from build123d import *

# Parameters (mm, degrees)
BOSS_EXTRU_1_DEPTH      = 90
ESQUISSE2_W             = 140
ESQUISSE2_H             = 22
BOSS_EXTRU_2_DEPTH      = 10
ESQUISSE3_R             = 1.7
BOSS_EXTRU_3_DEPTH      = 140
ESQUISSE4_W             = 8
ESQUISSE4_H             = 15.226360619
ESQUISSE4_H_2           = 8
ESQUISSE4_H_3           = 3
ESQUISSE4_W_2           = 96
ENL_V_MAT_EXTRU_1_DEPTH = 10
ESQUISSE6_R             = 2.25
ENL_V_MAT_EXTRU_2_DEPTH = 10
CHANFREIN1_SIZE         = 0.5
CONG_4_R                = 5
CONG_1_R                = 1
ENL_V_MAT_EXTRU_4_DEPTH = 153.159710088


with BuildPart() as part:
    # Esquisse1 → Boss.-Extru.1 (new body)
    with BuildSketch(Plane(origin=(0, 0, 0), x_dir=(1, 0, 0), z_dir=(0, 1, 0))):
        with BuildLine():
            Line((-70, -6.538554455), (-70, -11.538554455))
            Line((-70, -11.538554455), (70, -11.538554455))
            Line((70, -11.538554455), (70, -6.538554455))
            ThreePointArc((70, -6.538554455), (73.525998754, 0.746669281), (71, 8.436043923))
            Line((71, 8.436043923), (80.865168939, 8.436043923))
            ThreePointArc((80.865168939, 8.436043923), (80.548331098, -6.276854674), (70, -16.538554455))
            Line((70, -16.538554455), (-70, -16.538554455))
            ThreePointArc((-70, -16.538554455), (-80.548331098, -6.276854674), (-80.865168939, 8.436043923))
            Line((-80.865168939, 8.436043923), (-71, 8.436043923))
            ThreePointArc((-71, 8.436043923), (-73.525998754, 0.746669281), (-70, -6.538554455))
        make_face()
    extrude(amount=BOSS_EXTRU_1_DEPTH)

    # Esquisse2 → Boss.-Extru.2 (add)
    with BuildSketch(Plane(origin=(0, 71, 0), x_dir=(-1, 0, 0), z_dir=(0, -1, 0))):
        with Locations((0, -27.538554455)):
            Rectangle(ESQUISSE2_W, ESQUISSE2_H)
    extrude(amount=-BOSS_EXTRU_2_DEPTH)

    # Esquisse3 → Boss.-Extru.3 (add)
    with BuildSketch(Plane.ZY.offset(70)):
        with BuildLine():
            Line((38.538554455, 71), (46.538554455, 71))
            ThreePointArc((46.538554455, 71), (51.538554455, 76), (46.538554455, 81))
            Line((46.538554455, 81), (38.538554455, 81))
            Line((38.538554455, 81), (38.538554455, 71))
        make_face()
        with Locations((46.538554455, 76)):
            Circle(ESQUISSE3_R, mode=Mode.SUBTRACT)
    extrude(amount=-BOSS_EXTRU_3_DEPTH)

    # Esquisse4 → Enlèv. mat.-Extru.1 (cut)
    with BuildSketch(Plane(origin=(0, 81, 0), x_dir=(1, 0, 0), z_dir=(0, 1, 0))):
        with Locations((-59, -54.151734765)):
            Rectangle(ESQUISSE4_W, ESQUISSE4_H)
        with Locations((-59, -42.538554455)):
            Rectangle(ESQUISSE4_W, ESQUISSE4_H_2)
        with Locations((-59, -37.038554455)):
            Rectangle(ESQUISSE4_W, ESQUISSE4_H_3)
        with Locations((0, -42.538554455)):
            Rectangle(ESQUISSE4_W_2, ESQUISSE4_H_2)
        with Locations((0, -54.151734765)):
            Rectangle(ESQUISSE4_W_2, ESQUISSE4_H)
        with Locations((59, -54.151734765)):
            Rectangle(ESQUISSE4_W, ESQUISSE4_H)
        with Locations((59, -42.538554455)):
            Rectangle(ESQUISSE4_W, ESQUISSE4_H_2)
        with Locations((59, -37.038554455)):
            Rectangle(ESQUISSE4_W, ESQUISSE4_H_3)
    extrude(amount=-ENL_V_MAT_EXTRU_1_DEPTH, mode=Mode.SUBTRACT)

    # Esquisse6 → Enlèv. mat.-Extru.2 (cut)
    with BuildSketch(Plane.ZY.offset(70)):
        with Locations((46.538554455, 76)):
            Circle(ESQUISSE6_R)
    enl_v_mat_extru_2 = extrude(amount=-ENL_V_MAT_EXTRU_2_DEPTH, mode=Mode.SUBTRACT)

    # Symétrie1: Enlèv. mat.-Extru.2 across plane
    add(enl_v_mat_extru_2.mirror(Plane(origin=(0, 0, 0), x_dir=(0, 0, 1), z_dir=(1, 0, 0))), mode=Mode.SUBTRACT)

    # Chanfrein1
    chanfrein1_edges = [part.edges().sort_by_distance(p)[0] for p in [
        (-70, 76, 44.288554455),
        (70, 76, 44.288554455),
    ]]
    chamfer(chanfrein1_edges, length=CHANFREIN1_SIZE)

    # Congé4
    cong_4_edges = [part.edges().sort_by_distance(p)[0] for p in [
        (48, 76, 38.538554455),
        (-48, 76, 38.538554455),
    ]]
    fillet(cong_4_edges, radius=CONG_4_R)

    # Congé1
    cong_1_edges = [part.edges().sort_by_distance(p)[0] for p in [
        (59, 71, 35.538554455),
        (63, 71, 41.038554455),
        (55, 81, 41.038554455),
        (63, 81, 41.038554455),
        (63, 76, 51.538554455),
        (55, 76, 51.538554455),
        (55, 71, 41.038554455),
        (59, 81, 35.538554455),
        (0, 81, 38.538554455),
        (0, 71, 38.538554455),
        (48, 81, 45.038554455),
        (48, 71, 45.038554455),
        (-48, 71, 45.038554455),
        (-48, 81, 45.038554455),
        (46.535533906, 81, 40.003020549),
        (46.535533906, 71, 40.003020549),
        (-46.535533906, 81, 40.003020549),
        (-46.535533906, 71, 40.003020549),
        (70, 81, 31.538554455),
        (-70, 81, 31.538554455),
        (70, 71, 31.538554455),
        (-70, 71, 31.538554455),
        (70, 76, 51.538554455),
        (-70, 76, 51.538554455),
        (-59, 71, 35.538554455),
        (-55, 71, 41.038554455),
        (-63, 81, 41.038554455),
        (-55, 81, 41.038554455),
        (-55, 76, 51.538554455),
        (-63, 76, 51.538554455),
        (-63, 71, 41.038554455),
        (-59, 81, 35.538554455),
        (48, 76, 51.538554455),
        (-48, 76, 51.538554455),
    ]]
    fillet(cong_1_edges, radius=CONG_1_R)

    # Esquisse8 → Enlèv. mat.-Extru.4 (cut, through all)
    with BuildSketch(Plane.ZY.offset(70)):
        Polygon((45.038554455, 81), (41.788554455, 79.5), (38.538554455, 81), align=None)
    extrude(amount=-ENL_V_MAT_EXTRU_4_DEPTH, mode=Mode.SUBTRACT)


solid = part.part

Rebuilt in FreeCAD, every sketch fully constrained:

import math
import FreeCAD as App
import Part
import Sketcher

V = App.Vector


def edges_at(feature, points):
    """Names of the edges that pass closest to the given points."""
    edges = feature.Shape.Edges
    near = lambda p: min(range(len(edges)), key=lambda i: edges[i].distToShape(Part.Vertex(*p))[0])
    return sorted({f"Edge{near(p) + 1}" for p in points})


def add_polygon(sketch, points):
    """Adds a closed chain of lines whose ends are joined by coincident constraints."""
    first, n = sketch.GeometryCount, len(points)
    for a, b in zip(points, points[1:] + points[:1]):
        sketch.addGeometry(Part.LineSegment(App.Vector(*a, 0), App.Vector(*b, 0)), False)
    for i in range(n):
        sketch.addConstraint(Sketcher.Constraint("Coincident", first + i, 2, first + (i + 1) % n, 1))

doc = App.newDocument("Part")
body = doc.addObject("PartDesign::Body", "Body")

# Sketch on XZ plane
sketch1 = body.newObject("Sketcher::SketchObject", "Sketch")
sketch1.AttachmentSupport = (doc.getObject("XZ_Plane"), [""])
sketch1.MapMode = "FlatFace"
sketch1.addGeometry(Part.LineSegment(V(-70, 12, 0), V(-70, 7, 0)), False)
sketch1.addGeometry(Part.ArcOfCircle(Part.Circle(V(-63, -1, 0), V(0, 0, 1), 11), math.radians(132), math.radians(220)), False)
sketch1.addGeometry(Part.LineSegment(V(-71, -8, 0), V(-81, -8, 0)), False)
sketch1.addGeometry(Part.ArcOfCircle(Part.Circle(V(-63, -1, 0), V(0, 0, 1), 19), math.radians(112), math.radians(201)), False)
sketch1.addGeometry(Part.LineSegment(V(-70, 17, 0), V(70, 17, 0)), False)
sketch1.addGeometry(Part.ArcOfCircle(Part.Circle(V(63, -1, 0), V(0, 0, 1), 19), math.radians(-21), math.radians(68)), False)
sketch1.addGeometry(Part.LineSegment(V(81, -8, 0), V(71, -8, 0)), False)
sketch1.addGeometry(Part.ArcOfCircle(Part.Circle(V(63, -1, 0), V(0, 0, 1), 11), math.radians(-40), math.radians(48)), False)
sketch1.addGeometry(Part.LineSegment(V(70, 7, 0), V(70, 12, 0)), False)
sketch1.addGeometry(Part.LineSegment(V(70, 12, 0), V(-70, 12, 0)), False)
sketch1.addConstraint(Sketcher.Constraint("Coincident", 0, 2, 1, 1))
sketch1.addConstraint(Sketcher.Constraint("Coincident", 1, 2, 2, 1))
sketch1.addConstraint(Sketcher.Constraint("Coincident", 2, 2, 3, 2))
sketch1.addConstraint(Sketcher.Constraint("Coincident", 3, 1, 4, 1))
sketch1.addConstraint(Sketcher.Constraint("Coincident", 4, 2, 5, 2))
sketch1.addConstraint(Sketcher.Constraint("Coincident", 5, 1, 6, 1))
sketch1.addConstraint(Sketcher.Constraint("Coincident", 6, 2, 7, 1))
sketch1.addConstraint(Sketcher.Constraint("Coincident", 7, 2, 8, 1))
sketch1.addConstraint(Sketcher.Constraint("Coincident", 8, 2, 9, 1))
sketch1.addConstraint(Sketcher.Constraint("Coincident", 9, 2, 0, 1))
sketch1.addConstraint(Sketcher.Constraint("Vertical", 0))
sketch1.addConstraint(Sketcher.Constraint("Horizontal", 2))
sketch1.addConstraint(Sketcher.Constraint("Horizontal", 4))
sketch1.addConstraint(Sketcher.Constraint("Horizontal", 6))
sketch1.addConstraint(Sketcher.Constraint("Vertical", 8))
sketch1.addConstraint(Sketcher.Constraint("Horizontal", 9))
sketch1.addConstraint(Sketcher.Constraint("Coincident", 3, 3, 1, 3))
sketch1.addConstraint(Sketcher.Constraint("Coincident", 7, 3, 5, 3))
sketch1.addConstraint(Sketcher.Constraint("Equal", 3, 5))
sketch1.addConstraint(Sketcher.Constraint("Equal", 1, 7))
sketch1.addConstraint(Sketcher.Constraint("Symmetric", 1, 3, 5, 3, -2))
sketch1.addConstraint(Sketcher.Constraint("Horizontal", 2, 2, 5, 1))
sketch1.addConstraint(Sketcher.Constraint("Horizontal", 0, 2, 7, 2))
sketch1.addConstraint(Sketcher.Constraint("Vertical", 0, 2, 3, 1))
sketch1.addConstraint(Sketcher.Constraint("Radius", 1, 10.8))
sketch1.addConstraint(Sketcher.Constraint("DistanceX", 4, 1, 4, 2, 140.0))
sketch1.addConstraint(Sketcher.Constraint("DistanceY", 0, 2, 0, 1, 5.0))
sketch1.addConstraint(Sketcher.Constraint("DistanceX", 1, 2, -1, 1, 71.0))
sketch1.addConstraint(Sketcher.Constraint("DistanceY", 0, 2, 3, 1, 10.0))
sketch1.addConstraint(Sketcher.Constraint("DistanceX", 1, 3, 5, 3, 125.5))
sketch1.addConstraint(Sketcher.Constraint("DistanceY", 1, 3, -1, 1, 1.466288))
pad1 = body.newObject("PartDesign::Pad", "Pad")
pad1.Profile = sketch1
pad1.Length = 90
pad1.Reversed = True

# Sketch on XZ plane
sketch2 = body.newObject("Sketcher::SketchObject", "Sketch001")
sketch2.AttachmentSupport = (doc.getObject("XZ_Plane"), [""])
sketch2.MapMode = "FlatFace"
sketch2.AttachmentOffset = App.Placement(V(0, 0, -71), App.Rotation())
add_polygon(sketch2, [(70, 17), (70, 39), (-70, 39), (-70, 17)])  # lines 0-3
sketch2.addConstraint(Sketcher.Constraint("Vertical", 0))
sketch2.addConstraint(Sketcher.Constraint("Horizontal", 1))
sketch2.addConstraint(Sketcher.Constraint("Vertical", 2))
sketch2.addConstraint(Sketcher.Constraint("Horizontal", 3))
sketch2.addConstraint(Sketcher.Constraint("DistanceX", 1, 2, 1, 1, 140.0))
sketch2.addConstraint(Sketcher.Constraint("DistanceY", 0, 1, 0, 2, 22.0))
sketch2.addConstraint(Sketcher.Constraint("DistanceX", -1, 1, 0, 2, 70.0))
sketch2.addConstraint(Sketcher.Constraint("DistanceY", -1, 1, 0, 2, 38.538554))
pad2 = body.newObject("PartDesign::Pad", "Pad001")
pad2.Profile = sketch2
pad2.Length = 10
pad2.Reversed = True

# Sketch on YZ plane
sketch3 = body.newObject("Sketcher::SketchObject", "Sketch002")
sketch3.AttachmentSupport = (doc.getObject("YZ_Plane"), [""])
sketch3.MapMode = "FlatFace"
sketch3.AttachmentOffset = App.Placement(V(0, 0, -70), App.Rotation())
sketch3.addGeometry(Part.LineSegment(V(71, 38.5, 0), V(71, 46.5, 0)), False)
sketch3.addGeometry(Part.ArcOfCircle(Part.Circle(V(76, 46.5, 0), V(0, 0, 1), 5), math.radians(0), math.radians(180)), False)
sketch3.addGeometry(Part.LineSegment(V(81, 46.5, 0), V(81, 38.5, 0)), False)
sketch3.addGeometry(Part.LineSegment(V(81, 38.5, 0), V(71, 38.5, 0)), False)
sketch3.addGeometry(Part.Circle(V(76, 46.5, 0), V(0, 0, 1), 1.7), False)
sketch3.addConstraint(Sketcher.Constraint("Tangent", 0, 2, 1, 2))
sketch3.addConstraint(Sketcher.Constraint("Tangent", 1, 1, 2, 1))
sketch3.addConstraint(Sketcher.Constraint("Coincident", 2, 2, 3, 1))
sketch3.addConstraint(Sketcher.Constraint("Coincident", 3, 2, 0, 1))
sketch3.addConstraint(Sketcher.Constraint("Vertical", 0))
sketch3.addConstraint(Sketcher.Constraint("Vertical", 2))
sketch3.addConstraint(Sketcher.Constraint("Horizontal", 3))
sketch3.addConstraint(Sketcher.Constraint("Coincident", 4, 3, 1, 3))
sketch3.addConstraint(Sketcher.Constraint("Radius", 1, 5.0))
sketch3.addConstraint(Sketcher.Constraint("Diameter", 4, 3.4))
sketch3.addConstraint(Sketcher.Constraint("DistanceY", 0, 1, 0, 2, 8.0))
sketch3.addConstraint(Sketcher.Constraint("DistanceX", -1, 1, 1, 3, 76.0))
sketch3.addConstraint(Sketcher.Constraint("DistanceY", -1, 1, 1, 3, 46.538554))
pad3 = body.newObject("PartDesign::Pad", "Pad002")
pad3.Profile = sketch3
pad3.Length = 140

# Sketch on XZ plane
sketch4 = body.newObject("Sketcher::SketchObject", "Sketch003")
sketch4.AttachmentSupport = (doc.getObject("XZ_Plane"), [""])
sketch4.MapMode = "FlatFace"
sketch4.AttachmentOffset = App.Placement(V(0, 0, -81), App.Rotation())
add_polygon(sketch4, [(-63, 62), (-55, 62), (-55, 36), (-63, 36)])  # lines 0-3
add_polygon(sketch4, [(-48, 39), (-48, 62), (48, 62), (48, 39)])  # lines 4-7
add_polygon(sketch4, [(55, 62), (63, 62), (63, 36), (55, 36)])  # lines 8-11
sketch4.addConstraint(Sketcher.Constraint("Horizontal", 0))
sketch4.addConstraint(Sketcher.Constraint("Vertical", 1))
sketch4.addConstraint(Sketcher.Constraint("Horizontal", 2))
sketch4.addConstraint(Sketcher.Constraint("Vertical", 3))
sketch4.addConstraint(Sketcher.Constraint("Vertical", 4))
sketch4.addConstraint(Sketcher.Constraint("Horizontal", 5))
sketch4.addConstraint(Sketcher.Constraint("Vertical", 6))
sketch4.addConstraint(Sketcher.Constraint("Horizontal", 7))
sketch4.addConstraint(Sketcher.Constraint("Horizontal", 8))
sketch4.addConstraint(Sketcher.Constraint("Vertical", 9))
sketch4.addConstraint(Sketcher.Constraint("Horizontal", 10))
sketch4.addConstraint(Sketcher.Constraint("Vertical", 11))
sketch4.addConstraint(Sketcher.Constraint("Symmetric", 3, 2, 8, 2, -2))
sketch4.addConstraint(Sketcher.Constraint("Symmetric", 1, 2, 10, 2, -2))
sketch4.addConstraint(Sketcher.Constraint("Horizontal", 3, 2, 4, 2))
sketch4.addConstraint(Sketcher.Constraint("DistanceX", 0, 1, 0, 2, 8.0))
sketch4.addConstraint(Sketcher.Constraint("DistanceX", 5, 1, 5, 2, 96.0))
sketch4.addConstraint(Sketcher.Constraint("DistanceX", 0, 2, -1, 1, 55.0))
sketch4.addConstraint(Sketcher.Constraint("DistanceX", 4, 2, -1, 1, 48.0))
sketch4.addConstraint(Sketcher.Constraint("DistanceY", 1, 2, 6, 2, 3.0))
sketch4.addConstraint(Sketcher.Constraint("DistanceY", 1, 2, 1, 1, 26.226361))
sketch4.addConstraint(Sketcher.Constraint("DistanceY", -1, 1, 0, 2, 61.764915))
pocket1 = body.newObject("PartDesign::Pocket", "Pocket")
pocket1.Profile = sketch4
pocket1.Length = 10
pocket1.Reversed = True

# Sketch on YZ plane
sketch5 = body.newObject("Sketcher::SketchObject", "Sketch004")
sketch5.AttachmentSupport = (doc.getObject("YZ_Plane"), [""])
sketch5.MapMode = "FlatFace"
sketch5.AttachmentOffset = App.Placement(V(0, 0, -70), App.Rotation())
sketch5.addGeometry(Part.Circle(V(76, 46.5, 0), V(0, 0, 1), 2.2), False)
sketch5.addConstraint(Sketcher.Constraint("Diameter", 0, 4.5))
sketch5.addConstraint(Sketcher.Constraint("DistanceX", -1, 1, 0, 3, 76.0))
sketch5.addConstraint(Sketcher.Constraint("DistanceY", -1, 1, 0, 3, 46.538554))
pocket2 = body.newObject("PartDesign::Pocket", "Pocket001")
pocket2.Profile = sketch5
pocket2.Length = 10
pocket2.Reversed = True
doc.recompute()

mirrored = body.newObject("PartDesign::Mirrored", "Mirrored")
mirrored.Originals = [pocket2]
mirrored.MirrorPlane = (doc.getObject("YZ_Plane"), [""])
body.Tip = mirrored
doc.recompute()

chamfer = body.newObject("PartDesign::Chamfer", "Chamfer")
chamfer.Base = (mirrored, edges_at(mirrored, [(-70, 76, 44.289), (70, 76, 44.289)]))
chamfer.Size = 0.5
doc.recompute()

fillet = body.newObject("PartDesign::Fillet", "Fillet")
fillet.Base = (chamfer, edges_at(chamfer, [(48, 76, 38.539), (-48, 76, 38.539)]))
fillet.Radius = 5
doc.recompute()

fillet2 = body.newObject("PartDesign::Fillet", "Fillet001")
fillet2.Base = (fillet, edges_at(fillet, [
    (59, 71, 35.539),
    (63, 71, 41.039),
    (55, 81, 41.039),
    (63, 81, 41.039),
    (63, 76, 51.539),
    (55, 76, 51.539),
    (55, 71, 41.039),
    (59, 81, 35.539),
    (0, 81, 38.539),
    (0, 71, 38.539),
    (48, 81, 45.039),
    (48, 71, 45.039),
    (-48, 71, 45.039),
    (-48, 81, 45.039),
    (46.536, 81, 40.003),
    (46.536, 71, 40.003),
    (-46.536, 81, 40.003),
    (-46.536, 71, 40.003),
    (70, 81, 31.539),
    (-70, 81, 31.539),
    (70, 71, 31.539),
    (-70, 71, 31.539),
    (70, 76, 51.539),
    (-70, 76, 51.539),
    (-59, 71, 35.539),
    (-55, 71, 41.039),
    (-63, 81, 41.039),
    (-55, 81, 41.039),
    (-55, 76, 51.539),
    (-63, 76, 51.539),
    (-63, 71, 41.039),
    (-59, 81, 35.539),
    (48, 76, 51.539),
    (-48, 76, 51.539),
]))
fillet2.Radius = 1

# Sketch on YZ plane
sketch6 = body.newObject("Sketcher::SketchObject", "Sketch005")
sketch6.AttachmentSupport = (doc.getObject("YZ_Plane"), [""])
sketch6.MapMode = "FlatFace"
sketch6.AttachmentOffset = App.Placement(V(0, 0, -70), App.Rotation())
add_polygon(sketch6, [(79.5, 41.8), (81, 45), (81, 38.5)])  # lines 0-2
sketch6.addConstraint(Sketcher.Constraint("Vertical", 1))
sketch6.addConstraint(Sketcher.Constraint("Equal", 0, 2))
sketch6.addConstraint(Sketcher.Constraint("DistanceY", 1, 2, 1, 1, 6.5))
sketch6.addConstraint(Sketcher.Constraint("DistanceX", -1, 1, 0, 2, 81.0))
sketch6.addConstraint(Sketcher.Constraint("DistanceX", -1, 1, 2, 2, 79.5))
sketch6.addConstraint(Sketcher.Constraint("DistanceY", -1, 1, 0, 2, 45.038554))
pocket3 = body.newObject("PartDesign::Pocket", "Pocket002")
pocket3.Profile = sketch6
pocket3.Type = "ThroughAll"
pocket3.Reversed = True

doc.recompute()
